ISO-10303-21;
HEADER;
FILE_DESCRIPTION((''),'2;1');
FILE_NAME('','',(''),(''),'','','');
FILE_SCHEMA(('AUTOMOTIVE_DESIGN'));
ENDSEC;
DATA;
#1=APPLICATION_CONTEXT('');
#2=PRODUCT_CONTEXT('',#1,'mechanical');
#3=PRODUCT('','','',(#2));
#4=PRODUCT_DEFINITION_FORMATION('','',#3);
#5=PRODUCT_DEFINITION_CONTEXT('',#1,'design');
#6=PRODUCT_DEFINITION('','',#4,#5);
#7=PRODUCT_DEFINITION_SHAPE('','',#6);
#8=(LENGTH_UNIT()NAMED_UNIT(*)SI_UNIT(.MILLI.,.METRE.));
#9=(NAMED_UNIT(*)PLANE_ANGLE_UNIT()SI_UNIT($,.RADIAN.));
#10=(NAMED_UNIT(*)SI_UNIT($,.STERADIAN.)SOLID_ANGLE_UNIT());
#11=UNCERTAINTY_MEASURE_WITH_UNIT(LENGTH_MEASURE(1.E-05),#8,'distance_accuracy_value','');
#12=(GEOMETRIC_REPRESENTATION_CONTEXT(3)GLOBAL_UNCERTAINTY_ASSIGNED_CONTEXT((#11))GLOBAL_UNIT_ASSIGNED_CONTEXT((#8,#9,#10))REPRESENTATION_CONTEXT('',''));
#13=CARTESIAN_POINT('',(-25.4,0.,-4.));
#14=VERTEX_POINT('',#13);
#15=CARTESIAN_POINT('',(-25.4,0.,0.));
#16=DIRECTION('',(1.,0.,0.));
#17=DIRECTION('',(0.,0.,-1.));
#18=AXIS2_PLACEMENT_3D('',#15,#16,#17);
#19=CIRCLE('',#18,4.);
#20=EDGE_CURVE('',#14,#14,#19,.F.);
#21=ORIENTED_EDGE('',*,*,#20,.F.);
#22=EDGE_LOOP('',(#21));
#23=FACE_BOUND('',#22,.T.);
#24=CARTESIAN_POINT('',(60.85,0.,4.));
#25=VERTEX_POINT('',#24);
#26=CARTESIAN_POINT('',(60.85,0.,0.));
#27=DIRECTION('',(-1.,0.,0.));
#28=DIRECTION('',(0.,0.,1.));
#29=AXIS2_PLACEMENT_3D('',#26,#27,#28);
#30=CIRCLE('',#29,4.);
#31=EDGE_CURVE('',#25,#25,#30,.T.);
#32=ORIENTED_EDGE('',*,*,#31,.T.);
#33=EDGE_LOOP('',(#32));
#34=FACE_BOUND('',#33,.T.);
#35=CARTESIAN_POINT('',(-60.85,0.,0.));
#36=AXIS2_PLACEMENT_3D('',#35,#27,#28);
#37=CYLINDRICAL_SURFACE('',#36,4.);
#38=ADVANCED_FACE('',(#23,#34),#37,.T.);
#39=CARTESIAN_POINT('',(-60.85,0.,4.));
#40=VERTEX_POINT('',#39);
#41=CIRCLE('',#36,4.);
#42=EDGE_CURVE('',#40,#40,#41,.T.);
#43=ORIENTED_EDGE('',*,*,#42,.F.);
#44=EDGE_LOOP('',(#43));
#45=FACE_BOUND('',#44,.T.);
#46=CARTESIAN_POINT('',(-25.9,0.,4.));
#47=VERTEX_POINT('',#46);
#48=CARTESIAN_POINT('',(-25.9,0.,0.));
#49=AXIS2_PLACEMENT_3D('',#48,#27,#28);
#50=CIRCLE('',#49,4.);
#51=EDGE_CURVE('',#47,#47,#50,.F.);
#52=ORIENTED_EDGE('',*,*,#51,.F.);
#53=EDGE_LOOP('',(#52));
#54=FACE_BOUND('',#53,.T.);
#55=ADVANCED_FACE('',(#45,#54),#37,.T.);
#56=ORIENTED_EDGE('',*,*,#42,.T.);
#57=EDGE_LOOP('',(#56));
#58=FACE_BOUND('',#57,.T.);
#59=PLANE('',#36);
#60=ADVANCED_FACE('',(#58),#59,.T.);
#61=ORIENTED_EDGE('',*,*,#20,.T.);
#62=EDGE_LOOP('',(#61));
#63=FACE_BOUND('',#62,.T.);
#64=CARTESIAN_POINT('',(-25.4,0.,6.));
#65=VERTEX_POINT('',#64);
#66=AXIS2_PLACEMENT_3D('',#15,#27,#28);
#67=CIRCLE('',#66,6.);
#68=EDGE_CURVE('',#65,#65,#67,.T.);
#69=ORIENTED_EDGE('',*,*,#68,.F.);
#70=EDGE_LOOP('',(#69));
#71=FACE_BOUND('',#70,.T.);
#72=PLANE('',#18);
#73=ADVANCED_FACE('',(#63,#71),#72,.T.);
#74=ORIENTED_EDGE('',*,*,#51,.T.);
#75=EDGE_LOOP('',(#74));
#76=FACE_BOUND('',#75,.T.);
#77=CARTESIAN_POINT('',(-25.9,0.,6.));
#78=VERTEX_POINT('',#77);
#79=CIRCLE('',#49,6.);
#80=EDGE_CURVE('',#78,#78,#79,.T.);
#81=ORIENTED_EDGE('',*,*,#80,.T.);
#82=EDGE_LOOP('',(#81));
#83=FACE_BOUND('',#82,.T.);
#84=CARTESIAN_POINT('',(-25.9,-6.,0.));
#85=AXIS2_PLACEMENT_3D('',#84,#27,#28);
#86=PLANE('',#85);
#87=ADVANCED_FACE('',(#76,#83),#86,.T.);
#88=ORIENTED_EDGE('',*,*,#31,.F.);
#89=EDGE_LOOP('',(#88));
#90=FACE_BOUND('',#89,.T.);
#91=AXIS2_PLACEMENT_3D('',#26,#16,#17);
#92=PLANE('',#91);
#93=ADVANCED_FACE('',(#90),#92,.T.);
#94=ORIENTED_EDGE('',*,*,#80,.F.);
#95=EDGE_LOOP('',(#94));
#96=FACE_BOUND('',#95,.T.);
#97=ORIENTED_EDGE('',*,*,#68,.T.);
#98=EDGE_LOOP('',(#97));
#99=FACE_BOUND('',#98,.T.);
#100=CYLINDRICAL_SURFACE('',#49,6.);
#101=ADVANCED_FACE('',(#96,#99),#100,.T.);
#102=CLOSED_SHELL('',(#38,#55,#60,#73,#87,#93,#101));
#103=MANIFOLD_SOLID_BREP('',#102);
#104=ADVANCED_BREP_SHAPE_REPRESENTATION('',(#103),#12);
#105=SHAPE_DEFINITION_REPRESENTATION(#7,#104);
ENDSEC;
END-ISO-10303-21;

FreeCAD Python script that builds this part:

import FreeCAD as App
import Part
import Sketcher


def add_polygon(sketch, points):
    """Adds a closed chain of lines whose ends are joined by coincident constraints."""
    first, n = sketch.GeometryCount, len(points)
    for a, b in zip(points, points[1:] + points[:1]):
        sketch.addGeometry(Part.LineSegment(App.Vector(*a, 0), App.Vector(*b, 0)), False)
    for i in range(n):
        sketch.addConstraint(Sketcher.Constraint("Coincident", first + i, 2, first + (i + 1) % n, 1))

doc = App.newDocument("Part")
body = doc.addObject("PartDesign::Body", "Body")

# Sketch on XY plane
sketch1 = doc.addObject("Sketcher::SketchObject", "Sketch")
body.addObject(sketch1)
sketch1.AttachmentSupport = (doc.XY_Plane, [""])
sketch1.MapMode = "FlatFace"
add_polygon(sketch1, [(-60.85, 0), (-60.85, -4), (60.85, -4), (60.85, 0)])  # lines 0-3
sketch1.addConstraint([
    Sketcher.Constraint("Vertical", 0),
    Sketcher.Constraint("Horizontal", 1),
    Sketcher.Constraint("Vertical", 2),
    Sketcher.Constraint("Horizontal", 3),
    Sketcher.Constraint("Symmetric", 2, 2, 3, 2, -1, 1),
    Sketcher.Constraint("DistanceY", 0, 2, 0, 1, 4.0),
    Sketcher.Constraint("DistanceX", 1, 1, 1, 2, 121.7),
])
revolution = doc.addObject("PartDesign::Revolution", "Revolution")
body.addObject(revolution)
revolution.Profile = sketch1
revolution.ReferenceAxis = (sketch1, ["H_Axis"])
revolution.Angle = 360

# Sketch on XY plane
sketch2 = doc.addObject("Sketcher::SketchObject", "Sketch001")
body.addObject(sketch2)
sketch2.AttachmentSupport = (doc.XY_Plane, [""])
sketch2.MapMode = "FlatFace"
add_polygon(sketch2, [(-25.9, 0), (-25.9, -6), (-25.4, -6), (-25.4, 0)])  # lines 0-3
sketch2.addConstraint([
    Sketcher.Constraint("Vertical", 0),
    Sketcher.Constraint("Horizontal", 1),
    Sketcher.Constraint("Vertical", 2),
    Sketcher.Constraint("Horizontal", 3),
    Sketcher.Constraint("PointOnObject", 2, 2, -1),
    Sketcher.Constraint("DistanceY", 0, 2, 0, 1, 6.0),
    Sketcher.Constraint("DistanceX", 1, 1, 1, 2, 0.5),
    Sketcher.Constraint("DistanceX", 0, 2, -1, 1, 25.9),
])
revolution2 = doc.addObject("PartDesign::Revolution", "Revolution001")
body.addObject(revolution2)
revolution2.Profile = sketch2
revolution2.ReferenceAxis = (sketch2, ["H_Axis"])
revolution2.Angle = 360

doc.recompute()
